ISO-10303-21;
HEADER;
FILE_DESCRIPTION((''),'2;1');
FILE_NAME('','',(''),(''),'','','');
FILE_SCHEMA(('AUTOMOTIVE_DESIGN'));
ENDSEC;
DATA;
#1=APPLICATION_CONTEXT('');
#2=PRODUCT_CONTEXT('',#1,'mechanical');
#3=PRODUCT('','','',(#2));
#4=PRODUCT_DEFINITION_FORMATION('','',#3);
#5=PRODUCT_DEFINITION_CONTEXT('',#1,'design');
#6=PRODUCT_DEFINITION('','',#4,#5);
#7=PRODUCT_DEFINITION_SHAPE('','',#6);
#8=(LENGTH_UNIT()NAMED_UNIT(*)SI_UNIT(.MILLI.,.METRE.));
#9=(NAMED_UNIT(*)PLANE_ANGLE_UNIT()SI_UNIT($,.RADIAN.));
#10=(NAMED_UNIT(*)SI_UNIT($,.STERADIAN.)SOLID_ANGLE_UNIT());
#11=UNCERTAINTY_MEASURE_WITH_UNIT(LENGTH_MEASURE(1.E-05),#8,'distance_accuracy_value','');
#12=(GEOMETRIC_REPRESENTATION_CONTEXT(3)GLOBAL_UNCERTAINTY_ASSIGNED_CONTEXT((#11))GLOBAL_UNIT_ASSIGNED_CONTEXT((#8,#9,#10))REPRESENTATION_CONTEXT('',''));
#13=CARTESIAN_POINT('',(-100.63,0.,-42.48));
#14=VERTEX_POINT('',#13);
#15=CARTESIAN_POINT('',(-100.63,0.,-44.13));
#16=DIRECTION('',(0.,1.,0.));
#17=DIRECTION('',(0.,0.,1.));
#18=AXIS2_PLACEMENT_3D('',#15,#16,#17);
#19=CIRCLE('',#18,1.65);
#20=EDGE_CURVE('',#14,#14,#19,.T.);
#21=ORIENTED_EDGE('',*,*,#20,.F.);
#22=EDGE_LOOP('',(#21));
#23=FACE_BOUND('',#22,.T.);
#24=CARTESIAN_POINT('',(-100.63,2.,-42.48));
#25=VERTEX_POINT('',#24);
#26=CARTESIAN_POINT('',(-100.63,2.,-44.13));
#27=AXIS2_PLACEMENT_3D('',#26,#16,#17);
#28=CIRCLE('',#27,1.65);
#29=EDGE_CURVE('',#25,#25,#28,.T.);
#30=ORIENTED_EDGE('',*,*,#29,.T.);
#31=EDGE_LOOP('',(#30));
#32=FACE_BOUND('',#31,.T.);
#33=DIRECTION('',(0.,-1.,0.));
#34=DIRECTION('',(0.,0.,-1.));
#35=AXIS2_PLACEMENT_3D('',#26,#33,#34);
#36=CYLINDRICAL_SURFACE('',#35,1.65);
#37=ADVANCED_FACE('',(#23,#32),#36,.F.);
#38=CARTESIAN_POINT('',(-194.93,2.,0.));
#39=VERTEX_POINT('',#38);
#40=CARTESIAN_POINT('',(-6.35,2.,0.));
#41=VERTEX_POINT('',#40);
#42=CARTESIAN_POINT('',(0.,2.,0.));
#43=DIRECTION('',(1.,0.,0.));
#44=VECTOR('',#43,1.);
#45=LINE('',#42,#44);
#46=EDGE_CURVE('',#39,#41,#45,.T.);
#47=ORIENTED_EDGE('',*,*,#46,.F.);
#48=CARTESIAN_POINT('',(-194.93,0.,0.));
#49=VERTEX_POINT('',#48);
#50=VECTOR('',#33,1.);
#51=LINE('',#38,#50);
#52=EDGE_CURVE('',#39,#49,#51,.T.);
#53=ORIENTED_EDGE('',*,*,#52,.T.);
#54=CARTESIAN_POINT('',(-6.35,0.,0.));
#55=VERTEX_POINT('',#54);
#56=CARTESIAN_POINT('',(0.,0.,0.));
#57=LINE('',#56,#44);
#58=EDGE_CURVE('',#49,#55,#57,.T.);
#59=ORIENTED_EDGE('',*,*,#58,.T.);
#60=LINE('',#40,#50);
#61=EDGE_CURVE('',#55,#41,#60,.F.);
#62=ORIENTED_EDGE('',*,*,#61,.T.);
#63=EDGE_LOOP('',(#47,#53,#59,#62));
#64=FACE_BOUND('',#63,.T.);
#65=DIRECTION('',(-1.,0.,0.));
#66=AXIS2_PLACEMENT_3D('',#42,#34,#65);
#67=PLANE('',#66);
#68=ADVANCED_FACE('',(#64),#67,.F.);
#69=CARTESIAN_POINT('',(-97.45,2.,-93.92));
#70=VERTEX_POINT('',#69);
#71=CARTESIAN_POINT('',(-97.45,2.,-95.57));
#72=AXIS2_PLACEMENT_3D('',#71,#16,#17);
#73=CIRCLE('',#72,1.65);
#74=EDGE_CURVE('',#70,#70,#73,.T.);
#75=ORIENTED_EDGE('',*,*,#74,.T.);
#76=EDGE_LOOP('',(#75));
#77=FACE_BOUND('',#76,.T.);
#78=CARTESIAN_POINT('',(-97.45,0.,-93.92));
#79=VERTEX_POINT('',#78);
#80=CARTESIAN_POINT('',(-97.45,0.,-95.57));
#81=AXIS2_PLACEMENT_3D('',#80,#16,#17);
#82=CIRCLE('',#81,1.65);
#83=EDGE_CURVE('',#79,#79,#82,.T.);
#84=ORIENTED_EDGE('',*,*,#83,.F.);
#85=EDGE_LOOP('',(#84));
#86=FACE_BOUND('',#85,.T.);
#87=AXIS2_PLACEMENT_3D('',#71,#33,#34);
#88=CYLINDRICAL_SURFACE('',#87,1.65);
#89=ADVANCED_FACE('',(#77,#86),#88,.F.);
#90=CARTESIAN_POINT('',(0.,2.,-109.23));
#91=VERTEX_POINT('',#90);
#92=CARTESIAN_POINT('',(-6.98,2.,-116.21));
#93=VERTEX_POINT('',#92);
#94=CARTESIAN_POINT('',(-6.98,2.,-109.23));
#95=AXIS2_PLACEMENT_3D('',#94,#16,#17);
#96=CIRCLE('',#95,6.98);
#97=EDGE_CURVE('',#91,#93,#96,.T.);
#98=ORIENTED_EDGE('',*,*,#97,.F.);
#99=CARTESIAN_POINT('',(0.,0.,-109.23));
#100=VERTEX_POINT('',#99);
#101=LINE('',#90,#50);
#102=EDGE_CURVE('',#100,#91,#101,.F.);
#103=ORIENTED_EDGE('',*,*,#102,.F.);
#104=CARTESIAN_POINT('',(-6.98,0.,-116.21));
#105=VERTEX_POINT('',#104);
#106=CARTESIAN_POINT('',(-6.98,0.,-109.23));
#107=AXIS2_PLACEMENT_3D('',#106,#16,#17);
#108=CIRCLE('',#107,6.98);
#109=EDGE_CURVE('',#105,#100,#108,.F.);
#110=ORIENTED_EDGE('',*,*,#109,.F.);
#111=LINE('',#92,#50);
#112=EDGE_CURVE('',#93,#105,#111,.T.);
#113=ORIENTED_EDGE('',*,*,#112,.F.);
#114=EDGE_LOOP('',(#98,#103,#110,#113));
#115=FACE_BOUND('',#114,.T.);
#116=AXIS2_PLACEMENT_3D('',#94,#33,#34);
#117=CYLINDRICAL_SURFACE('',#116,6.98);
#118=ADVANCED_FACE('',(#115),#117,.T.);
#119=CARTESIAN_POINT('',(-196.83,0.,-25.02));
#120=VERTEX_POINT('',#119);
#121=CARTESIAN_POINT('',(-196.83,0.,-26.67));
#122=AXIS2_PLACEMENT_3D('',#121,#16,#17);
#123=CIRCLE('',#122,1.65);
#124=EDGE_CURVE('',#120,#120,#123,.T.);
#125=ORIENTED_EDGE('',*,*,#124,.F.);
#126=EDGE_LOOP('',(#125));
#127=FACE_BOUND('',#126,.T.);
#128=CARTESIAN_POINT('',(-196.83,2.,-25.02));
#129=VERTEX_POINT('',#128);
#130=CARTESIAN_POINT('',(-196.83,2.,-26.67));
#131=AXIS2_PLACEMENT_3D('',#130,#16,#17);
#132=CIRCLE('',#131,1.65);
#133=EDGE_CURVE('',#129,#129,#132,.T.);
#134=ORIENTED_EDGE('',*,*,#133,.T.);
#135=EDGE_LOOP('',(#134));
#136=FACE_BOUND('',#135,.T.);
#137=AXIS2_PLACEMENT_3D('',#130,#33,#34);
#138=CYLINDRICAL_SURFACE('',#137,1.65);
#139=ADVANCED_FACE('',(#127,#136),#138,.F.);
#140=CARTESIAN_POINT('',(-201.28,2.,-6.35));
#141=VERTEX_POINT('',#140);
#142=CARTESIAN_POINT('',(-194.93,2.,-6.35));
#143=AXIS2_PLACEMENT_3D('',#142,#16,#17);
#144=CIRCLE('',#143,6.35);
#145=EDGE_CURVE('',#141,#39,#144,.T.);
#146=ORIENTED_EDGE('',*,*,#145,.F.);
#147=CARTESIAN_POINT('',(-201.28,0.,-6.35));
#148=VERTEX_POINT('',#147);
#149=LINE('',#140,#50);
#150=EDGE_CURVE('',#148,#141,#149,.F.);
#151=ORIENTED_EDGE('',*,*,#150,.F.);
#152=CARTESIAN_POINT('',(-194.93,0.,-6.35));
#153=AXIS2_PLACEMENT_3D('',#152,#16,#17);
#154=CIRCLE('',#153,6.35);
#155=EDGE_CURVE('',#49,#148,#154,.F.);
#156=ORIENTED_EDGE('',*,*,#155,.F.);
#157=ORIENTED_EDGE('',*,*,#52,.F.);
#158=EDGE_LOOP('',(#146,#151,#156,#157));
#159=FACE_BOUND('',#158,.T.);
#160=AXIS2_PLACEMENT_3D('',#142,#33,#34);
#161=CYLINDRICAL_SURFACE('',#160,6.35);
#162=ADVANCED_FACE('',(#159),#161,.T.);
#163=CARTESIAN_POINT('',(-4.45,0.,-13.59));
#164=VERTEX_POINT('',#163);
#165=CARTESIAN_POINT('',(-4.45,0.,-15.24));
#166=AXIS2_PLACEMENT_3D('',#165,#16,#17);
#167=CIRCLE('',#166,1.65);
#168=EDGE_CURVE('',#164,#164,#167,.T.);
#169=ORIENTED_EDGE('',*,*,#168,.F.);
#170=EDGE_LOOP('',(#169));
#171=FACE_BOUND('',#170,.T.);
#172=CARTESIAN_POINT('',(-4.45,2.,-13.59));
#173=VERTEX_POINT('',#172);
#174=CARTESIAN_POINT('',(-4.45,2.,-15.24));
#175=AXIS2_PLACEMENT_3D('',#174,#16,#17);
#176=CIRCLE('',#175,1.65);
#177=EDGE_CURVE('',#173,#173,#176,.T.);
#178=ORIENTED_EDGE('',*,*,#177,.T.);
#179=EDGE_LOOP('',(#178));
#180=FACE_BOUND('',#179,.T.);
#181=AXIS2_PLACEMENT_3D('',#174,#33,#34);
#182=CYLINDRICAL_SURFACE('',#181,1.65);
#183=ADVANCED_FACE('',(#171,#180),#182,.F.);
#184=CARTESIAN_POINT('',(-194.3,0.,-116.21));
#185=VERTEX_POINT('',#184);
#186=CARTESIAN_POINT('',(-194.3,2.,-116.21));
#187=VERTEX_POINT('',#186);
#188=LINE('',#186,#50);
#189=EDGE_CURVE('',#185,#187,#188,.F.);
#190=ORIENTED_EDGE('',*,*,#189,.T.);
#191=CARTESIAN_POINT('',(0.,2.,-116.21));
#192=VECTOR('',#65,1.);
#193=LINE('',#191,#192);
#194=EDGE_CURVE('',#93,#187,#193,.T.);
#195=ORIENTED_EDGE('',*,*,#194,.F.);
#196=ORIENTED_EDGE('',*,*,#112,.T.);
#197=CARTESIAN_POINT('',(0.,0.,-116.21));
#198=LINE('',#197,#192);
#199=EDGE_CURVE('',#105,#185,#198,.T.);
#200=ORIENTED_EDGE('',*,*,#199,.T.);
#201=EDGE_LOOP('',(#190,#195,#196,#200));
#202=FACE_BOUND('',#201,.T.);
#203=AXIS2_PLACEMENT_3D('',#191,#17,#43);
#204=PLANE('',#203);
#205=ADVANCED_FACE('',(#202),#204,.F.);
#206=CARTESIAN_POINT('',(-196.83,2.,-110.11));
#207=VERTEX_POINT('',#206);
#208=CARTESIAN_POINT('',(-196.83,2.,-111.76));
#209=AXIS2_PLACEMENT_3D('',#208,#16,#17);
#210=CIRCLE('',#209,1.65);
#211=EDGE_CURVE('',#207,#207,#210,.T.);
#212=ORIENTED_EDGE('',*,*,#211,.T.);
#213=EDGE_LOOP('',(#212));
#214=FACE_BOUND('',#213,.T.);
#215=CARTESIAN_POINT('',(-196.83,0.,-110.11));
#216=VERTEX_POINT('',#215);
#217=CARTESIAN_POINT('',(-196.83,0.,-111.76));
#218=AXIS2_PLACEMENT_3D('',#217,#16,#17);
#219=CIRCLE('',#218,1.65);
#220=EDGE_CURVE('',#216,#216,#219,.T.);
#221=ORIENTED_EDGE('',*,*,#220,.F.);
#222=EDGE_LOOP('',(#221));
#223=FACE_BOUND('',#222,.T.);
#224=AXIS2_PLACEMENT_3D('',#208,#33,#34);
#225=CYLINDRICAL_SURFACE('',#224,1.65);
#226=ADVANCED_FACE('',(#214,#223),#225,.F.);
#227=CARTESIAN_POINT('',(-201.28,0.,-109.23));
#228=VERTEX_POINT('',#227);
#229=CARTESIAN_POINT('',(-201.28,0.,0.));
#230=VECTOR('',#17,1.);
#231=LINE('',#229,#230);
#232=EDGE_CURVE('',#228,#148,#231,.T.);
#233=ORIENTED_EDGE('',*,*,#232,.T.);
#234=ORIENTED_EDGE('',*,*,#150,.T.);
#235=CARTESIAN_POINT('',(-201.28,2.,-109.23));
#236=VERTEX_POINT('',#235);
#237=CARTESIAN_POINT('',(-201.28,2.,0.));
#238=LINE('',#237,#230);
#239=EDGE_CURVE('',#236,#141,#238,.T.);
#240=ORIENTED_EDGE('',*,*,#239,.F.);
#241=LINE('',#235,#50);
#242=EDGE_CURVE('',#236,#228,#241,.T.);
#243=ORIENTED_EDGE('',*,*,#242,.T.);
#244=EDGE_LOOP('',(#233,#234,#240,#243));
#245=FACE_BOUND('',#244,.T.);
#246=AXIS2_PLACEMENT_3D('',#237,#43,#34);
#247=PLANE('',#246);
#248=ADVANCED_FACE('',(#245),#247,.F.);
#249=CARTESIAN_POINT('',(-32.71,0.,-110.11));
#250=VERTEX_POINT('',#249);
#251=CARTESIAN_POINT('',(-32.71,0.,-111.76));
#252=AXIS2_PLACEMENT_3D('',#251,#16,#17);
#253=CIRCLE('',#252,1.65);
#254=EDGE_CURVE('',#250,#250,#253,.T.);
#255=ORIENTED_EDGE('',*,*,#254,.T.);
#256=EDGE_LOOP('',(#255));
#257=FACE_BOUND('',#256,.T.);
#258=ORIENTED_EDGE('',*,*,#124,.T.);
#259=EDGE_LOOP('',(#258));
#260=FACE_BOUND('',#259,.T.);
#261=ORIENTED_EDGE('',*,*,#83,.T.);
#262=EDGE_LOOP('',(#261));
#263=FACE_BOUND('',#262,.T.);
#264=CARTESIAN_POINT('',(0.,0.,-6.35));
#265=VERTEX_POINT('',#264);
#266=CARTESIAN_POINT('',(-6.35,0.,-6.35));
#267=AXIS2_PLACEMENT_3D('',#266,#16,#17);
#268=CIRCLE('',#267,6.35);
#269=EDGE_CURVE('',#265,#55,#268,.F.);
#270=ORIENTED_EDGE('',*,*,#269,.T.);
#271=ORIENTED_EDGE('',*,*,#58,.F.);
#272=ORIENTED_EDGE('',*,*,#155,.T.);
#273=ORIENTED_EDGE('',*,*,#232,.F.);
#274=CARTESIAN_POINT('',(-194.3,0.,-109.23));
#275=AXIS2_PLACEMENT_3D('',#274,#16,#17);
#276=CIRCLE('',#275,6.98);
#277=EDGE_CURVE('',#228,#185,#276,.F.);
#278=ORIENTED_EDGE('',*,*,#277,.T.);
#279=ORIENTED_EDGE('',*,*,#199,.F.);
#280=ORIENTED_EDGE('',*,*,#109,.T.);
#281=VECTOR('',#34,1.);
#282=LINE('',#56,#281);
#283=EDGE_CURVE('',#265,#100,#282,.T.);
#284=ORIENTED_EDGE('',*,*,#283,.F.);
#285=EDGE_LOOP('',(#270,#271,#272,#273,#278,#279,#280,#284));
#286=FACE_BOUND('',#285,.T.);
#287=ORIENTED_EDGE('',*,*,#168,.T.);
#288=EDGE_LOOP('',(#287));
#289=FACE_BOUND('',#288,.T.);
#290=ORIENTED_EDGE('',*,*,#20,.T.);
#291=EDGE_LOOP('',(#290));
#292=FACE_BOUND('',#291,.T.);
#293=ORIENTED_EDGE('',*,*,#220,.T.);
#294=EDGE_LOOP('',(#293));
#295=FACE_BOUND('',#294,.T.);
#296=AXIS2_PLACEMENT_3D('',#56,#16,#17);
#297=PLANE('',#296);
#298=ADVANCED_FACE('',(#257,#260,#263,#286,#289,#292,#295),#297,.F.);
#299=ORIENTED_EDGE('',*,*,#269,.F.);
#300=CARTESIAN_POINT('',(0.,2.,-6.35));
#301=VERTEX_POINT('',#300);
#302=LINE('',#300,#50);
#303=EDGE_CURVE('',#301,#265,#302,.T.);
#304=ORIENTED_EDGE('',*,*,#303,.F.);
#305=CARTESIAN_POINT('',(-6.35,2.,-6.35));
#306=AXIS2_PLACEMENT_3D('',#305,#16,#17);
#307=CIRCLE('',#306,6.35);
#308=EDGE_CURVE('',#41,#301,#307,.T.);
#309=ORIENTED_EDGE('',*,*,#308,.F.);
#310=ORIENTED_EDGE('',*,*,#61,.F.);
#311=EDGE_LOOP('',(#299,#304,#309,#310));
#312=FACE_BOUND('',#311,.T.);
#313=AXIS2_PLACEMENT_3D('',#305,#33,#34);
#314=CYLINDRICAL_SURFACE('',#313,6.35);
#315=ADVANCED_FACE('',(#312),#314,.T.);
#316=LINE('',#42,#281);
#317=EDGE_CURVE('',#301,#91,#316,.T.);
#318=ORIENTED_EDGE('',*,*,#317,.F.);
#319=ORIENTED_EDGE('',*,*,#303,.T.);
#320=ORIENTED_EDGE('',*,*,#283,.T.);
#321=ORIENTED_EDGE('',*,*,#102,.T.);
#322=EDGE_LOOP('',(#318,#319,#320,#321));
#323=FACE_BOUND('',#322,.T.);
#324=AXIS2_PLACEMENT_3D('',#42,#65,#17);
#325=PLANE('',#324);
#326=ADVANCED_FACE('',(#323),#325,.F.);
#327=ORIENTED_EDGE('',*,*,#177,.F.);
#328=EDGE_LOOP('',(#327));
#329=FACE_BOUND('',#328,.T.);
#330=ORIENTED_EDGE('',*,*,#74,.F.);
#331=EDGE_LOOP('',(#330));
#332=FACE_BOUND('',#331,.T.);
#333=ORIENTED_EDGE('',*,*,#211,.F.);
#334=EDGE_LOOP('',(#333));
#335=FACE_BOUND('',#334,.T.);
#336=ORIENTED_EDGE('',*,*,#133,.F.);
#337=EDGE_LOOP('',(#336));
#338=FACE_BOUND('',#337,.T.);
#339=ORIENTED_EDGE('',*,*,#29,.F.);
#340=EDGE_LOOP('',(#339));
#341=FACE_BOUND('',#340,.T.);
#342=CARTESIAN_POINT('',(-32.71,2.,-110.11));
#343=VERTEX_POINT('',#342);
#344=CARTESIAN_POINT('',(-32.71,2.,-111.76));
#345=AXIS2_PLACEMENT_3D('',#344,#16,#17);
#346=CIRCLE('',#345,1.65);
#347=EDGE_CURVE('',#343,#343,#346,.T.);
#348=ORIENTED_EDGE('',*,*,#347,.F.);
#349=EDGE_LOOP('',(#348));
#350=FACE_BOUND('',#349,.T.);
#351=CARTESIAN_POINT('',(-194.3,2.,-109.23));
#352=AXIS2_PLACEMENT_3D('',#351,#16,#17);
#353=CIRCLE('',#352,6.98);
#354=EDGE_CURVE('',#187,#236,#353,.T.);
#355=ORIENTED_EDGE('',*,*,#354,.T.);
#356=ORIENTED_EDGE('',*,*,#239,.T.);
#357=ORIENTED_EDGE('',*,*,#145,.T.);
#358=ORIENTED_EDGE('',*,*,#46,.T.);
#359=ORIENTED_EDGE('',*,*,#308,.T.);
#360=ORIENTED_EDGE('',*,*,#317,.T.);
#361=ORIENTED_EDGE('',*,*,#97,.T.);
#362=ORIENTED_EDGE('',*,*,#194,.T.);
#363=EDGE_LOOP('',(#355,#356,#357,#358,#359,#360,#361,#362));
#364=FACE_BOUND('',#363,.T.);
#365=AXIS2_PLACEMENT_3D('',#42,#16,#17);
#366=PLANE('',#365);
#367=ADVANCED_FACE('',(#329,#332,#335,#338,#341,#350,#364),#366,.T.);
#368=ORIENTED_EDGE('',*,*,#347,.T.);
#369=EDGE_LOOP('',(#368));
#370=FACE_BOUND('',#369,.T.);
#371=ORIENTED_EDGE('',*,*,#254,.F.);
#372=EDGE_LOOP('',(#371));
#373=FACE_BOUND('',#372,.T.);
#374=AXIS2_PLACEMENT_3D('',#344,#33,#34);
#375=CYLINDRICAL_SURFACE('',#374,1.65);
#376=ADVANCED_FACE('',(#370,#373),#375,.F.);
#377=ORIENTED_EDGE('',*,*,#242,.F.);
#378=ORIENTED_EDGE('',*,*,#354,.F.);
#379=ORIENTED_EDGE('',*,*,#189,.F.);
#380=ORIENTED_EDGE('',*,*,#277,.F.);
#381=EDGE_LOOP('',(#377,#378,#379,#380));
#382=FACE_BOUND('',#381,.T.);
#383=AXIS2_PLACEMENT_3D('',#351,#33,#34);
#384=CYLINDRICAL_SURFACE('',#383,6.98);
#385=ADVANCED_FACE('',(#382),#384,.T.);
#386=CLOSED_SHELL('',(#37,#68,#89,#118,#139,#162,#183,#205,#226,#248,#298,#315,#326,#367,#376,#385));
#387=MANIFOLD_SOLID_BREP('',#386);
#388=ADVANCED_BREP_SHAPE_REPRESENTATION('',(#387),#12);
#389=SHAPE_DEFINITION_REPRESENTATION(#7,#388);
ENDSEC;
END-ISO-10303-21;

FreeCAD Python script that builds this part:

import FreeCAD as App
import Part
import Sketcher


def edges_at(feature, points):
    """Names of the edges that pass closest to the given points."""
    edges = feature.Shape.Edges
    near = lambda p: min(range(len(edges)), key=lambda i: edges[i].distToShape(Part.Vertex(*p))[0])
    return sorted({f"Edge{near(p) + 1}" for p in points})

doc = App.newDocument("Part")
params = doc.addObject("Spreadsheet::Sheet", "Params")
for row, (alias, value) in enumerate([
    ("sketch1_diameter", "3.3 mm"),
    ("sketch1_width", "201.28 mm"),
    ("sketch1_height", "116.21 mm"),
    ("pad1_length", "2 mm"),
    ("fillet_radius", "6.98 mm"),
    ("fillet2_radius", "6.35 mm"),
], start=1):
    params.set(f"A{row}", alias)
    params.set(f"B{row}", "=" + value)
    params.setAlias(f"B{row}", alias)

body = doc.addObject("PartDesign::Body", "Body")

sketch1 = doc.addObject("Sketcher::SketchObject", "Sketch")
body.addObject(sketch1)
sketch1.AttachmentSupport = (doc.XZ_Plane, [""])
sketch1.MapMode = "FlatFace"
sketch1.addGeometry(Part.LineSegment(App.Vector(-201.3, -116.2, 0), App.Vector(-201.3, 0, 0)), False)
sketch1.addGeometry(Part.LineSegment(App.Vector(-201.3, 0, 0), App.Vector(0, 0, 0)), False)
sketch1.addGeometry(Part.LineSegment(App.Vector(0, 0, 0), App.Vector(0, -116.2, 0)), False)
sketch1.addGeometry(Part.LineSegment(App.Vector(0, -116.2, 0), App.Vector(-201.3, -116.2, 0)), False)
sketch1.addGeometry(Part.Circle(App.Vector(-196.8, -26.7, 0), App.Vector(0, 0, 1), 1.6), False)
sketch1.addGeometry(Part.Circle(App.Vector(-4.5, -15.2, 0), App.Vector(0, 0, 1), 1.6), False)
sketch1.addGeometry(Part.Circle(App.Vector(-100.6, -44.1, 0), App.Vector(0, 0, 1), 1.6), False)
sketch1.addGeometry(Part.Circle(App.Vector(-196.8, -111.8, 0), App.Vector(0, 0, 1), 1.6), False)
sketch1.addGeometry(Part.Circle(App.Vector(-97.5, -95.6, 0), App.Vector(0, 0, 1), 1.6), False)
sketch1.addGeometry(Part.Circle(App.Vector(-32.7, -111.8, 0), App.Vector(0, 0, 1), 1.6), False)
sketch1.addConstraint(Sketcher.Constraint("Coincident", 0, 2, 1, 1))
sketch1.addConstraint(Sketcher.Constraint("Coincident", 1, 2, 2, 1))
sketch1.addConstraint(Sketcher.Constraint("Coincident", 2, 2, 3, 1))
sketch1.addConstraint(Sketcher.Constraint("Coincident", 3, 2, 0, 1))
sketch1.addConstraint(Sketcher.Constraint("Vertical", 0))
sketch1.addConstraint(Sketcher.Constraint("Horizontal", 1))
sketch1.addConstraint(Sketcher.Constraint("Vertical", 2))
sketch1.addConstraint(Sketcher.Constraint("Horizontal", 3))
sketch1.addConstraint(Sketcher.Constraint("Coincident", 1, 2, -1, 1))
sketch1.addConstraint(Sketcher.Constraint("Equal", 4, 5))
sketch1.addConstraint(Sketcher.Constraint("Equal", 5, 6))
sketch1.addConstraint(Sketcher.Constraint("Equal", 6, 7))
sketch1.addConstraint(Sketcher.Constraint("Equal", 7, 8))
sketch1.addConstraint(Sketcher.Constraint("Equal", 8, 9))
sketch1.addConstraint(Sketcher.Constraint("Horizontal", 7, 3, 9, 3))
sketch1.addConstraint(Sketcher.Constraint("Vertical", 4, 3, 7, 3))
sketch1.addConstraint(Sketcher.Constraint("Diameter", 4, 3.3))
sketch1.addConstraint(Sketcher.Constraint("DistanceX", 8, 3, 5, 3, 93.0))
sketch1.addConstraint(Sketcher.Constraint("DistanceX", 1, 1, 1, 2, 201.28))
sketch1.addConstraint(Sketcher.Constraint("DistanceY", 0, 1, 0, 2, 116.21))
sketch1.addConstraint(Sketcher.Constraint("DistanceX", 4, 3, 6, 3, 96.2))
sketch1.addConstraint(Sketcher.Constraint("DistanceY", 8, 3, 4, 3, 68.9))
sketch1.addConstraint(Sketcher.Constraint("DistanceX", 4, 3, -1, 1, 196.83))
sketch1.addConstraint(Sketcher.Constraint("DistanceY", 4, 3, -1, 1, 26.67))
sketch1.addConstraint(Sketcher.Constraint("DistanceX", 5, 3, -1, 1, 4.45))
sketch1.addConstraint(Sketcher.Constraint("DistanceY", 5, 3, -1, 1, 15.24))
sketch1.addConstraint(Sketcher.Constraint("DistanceY", 6, 3, -1, 1, 44.13))
sketch1.addConstraint(Sketcher.Constraint("DistanceY", 7, 3, -1, 1, 111.76))
sketch1.addConstraint(Sketcher.Constraint("DistanceX", 9, 3, -1, 1, 32.71))
sketch1.setExpression("Constraints[16]", "Params.sketch1_diameter")
sketch1.setExpression("Constraints[18]", "Params.sketch1_width")
sketch1.setExpression("Constraints[19]", "Params.sketch1_height")
pad1 = doc.addObject("PartDesign::Pad", "Pad")
body.addObject(pad1)
pad1.Profile = sketch1
pad1.setExpression("Length", "Params.pad1_length")
pad1.Reversed = True
doc.recompute()

fillet = doc.addObject("PartDesign::Fillet", "Fillet")
body.addObject(fillet)
fillet.Base = (pad1, edges_at(pad1, [(-201.28, 1, -116.21), (0, 1, -116.21)]))
fillet.setExpression("Radius", "Params.fillet_radius")
doc.recompute()

fillet2 = doc.addObject("PartDesign::Fillet", "Fillet001")
body.addObject(fillet2)
fillet2.Base = (fillet, edges_at(fillet, [(0, 1, 0), (-201.28, 1, 0)]))
fillet2.setExpression("Radius", "Params.fillet2_radius")

doc.recompute()
